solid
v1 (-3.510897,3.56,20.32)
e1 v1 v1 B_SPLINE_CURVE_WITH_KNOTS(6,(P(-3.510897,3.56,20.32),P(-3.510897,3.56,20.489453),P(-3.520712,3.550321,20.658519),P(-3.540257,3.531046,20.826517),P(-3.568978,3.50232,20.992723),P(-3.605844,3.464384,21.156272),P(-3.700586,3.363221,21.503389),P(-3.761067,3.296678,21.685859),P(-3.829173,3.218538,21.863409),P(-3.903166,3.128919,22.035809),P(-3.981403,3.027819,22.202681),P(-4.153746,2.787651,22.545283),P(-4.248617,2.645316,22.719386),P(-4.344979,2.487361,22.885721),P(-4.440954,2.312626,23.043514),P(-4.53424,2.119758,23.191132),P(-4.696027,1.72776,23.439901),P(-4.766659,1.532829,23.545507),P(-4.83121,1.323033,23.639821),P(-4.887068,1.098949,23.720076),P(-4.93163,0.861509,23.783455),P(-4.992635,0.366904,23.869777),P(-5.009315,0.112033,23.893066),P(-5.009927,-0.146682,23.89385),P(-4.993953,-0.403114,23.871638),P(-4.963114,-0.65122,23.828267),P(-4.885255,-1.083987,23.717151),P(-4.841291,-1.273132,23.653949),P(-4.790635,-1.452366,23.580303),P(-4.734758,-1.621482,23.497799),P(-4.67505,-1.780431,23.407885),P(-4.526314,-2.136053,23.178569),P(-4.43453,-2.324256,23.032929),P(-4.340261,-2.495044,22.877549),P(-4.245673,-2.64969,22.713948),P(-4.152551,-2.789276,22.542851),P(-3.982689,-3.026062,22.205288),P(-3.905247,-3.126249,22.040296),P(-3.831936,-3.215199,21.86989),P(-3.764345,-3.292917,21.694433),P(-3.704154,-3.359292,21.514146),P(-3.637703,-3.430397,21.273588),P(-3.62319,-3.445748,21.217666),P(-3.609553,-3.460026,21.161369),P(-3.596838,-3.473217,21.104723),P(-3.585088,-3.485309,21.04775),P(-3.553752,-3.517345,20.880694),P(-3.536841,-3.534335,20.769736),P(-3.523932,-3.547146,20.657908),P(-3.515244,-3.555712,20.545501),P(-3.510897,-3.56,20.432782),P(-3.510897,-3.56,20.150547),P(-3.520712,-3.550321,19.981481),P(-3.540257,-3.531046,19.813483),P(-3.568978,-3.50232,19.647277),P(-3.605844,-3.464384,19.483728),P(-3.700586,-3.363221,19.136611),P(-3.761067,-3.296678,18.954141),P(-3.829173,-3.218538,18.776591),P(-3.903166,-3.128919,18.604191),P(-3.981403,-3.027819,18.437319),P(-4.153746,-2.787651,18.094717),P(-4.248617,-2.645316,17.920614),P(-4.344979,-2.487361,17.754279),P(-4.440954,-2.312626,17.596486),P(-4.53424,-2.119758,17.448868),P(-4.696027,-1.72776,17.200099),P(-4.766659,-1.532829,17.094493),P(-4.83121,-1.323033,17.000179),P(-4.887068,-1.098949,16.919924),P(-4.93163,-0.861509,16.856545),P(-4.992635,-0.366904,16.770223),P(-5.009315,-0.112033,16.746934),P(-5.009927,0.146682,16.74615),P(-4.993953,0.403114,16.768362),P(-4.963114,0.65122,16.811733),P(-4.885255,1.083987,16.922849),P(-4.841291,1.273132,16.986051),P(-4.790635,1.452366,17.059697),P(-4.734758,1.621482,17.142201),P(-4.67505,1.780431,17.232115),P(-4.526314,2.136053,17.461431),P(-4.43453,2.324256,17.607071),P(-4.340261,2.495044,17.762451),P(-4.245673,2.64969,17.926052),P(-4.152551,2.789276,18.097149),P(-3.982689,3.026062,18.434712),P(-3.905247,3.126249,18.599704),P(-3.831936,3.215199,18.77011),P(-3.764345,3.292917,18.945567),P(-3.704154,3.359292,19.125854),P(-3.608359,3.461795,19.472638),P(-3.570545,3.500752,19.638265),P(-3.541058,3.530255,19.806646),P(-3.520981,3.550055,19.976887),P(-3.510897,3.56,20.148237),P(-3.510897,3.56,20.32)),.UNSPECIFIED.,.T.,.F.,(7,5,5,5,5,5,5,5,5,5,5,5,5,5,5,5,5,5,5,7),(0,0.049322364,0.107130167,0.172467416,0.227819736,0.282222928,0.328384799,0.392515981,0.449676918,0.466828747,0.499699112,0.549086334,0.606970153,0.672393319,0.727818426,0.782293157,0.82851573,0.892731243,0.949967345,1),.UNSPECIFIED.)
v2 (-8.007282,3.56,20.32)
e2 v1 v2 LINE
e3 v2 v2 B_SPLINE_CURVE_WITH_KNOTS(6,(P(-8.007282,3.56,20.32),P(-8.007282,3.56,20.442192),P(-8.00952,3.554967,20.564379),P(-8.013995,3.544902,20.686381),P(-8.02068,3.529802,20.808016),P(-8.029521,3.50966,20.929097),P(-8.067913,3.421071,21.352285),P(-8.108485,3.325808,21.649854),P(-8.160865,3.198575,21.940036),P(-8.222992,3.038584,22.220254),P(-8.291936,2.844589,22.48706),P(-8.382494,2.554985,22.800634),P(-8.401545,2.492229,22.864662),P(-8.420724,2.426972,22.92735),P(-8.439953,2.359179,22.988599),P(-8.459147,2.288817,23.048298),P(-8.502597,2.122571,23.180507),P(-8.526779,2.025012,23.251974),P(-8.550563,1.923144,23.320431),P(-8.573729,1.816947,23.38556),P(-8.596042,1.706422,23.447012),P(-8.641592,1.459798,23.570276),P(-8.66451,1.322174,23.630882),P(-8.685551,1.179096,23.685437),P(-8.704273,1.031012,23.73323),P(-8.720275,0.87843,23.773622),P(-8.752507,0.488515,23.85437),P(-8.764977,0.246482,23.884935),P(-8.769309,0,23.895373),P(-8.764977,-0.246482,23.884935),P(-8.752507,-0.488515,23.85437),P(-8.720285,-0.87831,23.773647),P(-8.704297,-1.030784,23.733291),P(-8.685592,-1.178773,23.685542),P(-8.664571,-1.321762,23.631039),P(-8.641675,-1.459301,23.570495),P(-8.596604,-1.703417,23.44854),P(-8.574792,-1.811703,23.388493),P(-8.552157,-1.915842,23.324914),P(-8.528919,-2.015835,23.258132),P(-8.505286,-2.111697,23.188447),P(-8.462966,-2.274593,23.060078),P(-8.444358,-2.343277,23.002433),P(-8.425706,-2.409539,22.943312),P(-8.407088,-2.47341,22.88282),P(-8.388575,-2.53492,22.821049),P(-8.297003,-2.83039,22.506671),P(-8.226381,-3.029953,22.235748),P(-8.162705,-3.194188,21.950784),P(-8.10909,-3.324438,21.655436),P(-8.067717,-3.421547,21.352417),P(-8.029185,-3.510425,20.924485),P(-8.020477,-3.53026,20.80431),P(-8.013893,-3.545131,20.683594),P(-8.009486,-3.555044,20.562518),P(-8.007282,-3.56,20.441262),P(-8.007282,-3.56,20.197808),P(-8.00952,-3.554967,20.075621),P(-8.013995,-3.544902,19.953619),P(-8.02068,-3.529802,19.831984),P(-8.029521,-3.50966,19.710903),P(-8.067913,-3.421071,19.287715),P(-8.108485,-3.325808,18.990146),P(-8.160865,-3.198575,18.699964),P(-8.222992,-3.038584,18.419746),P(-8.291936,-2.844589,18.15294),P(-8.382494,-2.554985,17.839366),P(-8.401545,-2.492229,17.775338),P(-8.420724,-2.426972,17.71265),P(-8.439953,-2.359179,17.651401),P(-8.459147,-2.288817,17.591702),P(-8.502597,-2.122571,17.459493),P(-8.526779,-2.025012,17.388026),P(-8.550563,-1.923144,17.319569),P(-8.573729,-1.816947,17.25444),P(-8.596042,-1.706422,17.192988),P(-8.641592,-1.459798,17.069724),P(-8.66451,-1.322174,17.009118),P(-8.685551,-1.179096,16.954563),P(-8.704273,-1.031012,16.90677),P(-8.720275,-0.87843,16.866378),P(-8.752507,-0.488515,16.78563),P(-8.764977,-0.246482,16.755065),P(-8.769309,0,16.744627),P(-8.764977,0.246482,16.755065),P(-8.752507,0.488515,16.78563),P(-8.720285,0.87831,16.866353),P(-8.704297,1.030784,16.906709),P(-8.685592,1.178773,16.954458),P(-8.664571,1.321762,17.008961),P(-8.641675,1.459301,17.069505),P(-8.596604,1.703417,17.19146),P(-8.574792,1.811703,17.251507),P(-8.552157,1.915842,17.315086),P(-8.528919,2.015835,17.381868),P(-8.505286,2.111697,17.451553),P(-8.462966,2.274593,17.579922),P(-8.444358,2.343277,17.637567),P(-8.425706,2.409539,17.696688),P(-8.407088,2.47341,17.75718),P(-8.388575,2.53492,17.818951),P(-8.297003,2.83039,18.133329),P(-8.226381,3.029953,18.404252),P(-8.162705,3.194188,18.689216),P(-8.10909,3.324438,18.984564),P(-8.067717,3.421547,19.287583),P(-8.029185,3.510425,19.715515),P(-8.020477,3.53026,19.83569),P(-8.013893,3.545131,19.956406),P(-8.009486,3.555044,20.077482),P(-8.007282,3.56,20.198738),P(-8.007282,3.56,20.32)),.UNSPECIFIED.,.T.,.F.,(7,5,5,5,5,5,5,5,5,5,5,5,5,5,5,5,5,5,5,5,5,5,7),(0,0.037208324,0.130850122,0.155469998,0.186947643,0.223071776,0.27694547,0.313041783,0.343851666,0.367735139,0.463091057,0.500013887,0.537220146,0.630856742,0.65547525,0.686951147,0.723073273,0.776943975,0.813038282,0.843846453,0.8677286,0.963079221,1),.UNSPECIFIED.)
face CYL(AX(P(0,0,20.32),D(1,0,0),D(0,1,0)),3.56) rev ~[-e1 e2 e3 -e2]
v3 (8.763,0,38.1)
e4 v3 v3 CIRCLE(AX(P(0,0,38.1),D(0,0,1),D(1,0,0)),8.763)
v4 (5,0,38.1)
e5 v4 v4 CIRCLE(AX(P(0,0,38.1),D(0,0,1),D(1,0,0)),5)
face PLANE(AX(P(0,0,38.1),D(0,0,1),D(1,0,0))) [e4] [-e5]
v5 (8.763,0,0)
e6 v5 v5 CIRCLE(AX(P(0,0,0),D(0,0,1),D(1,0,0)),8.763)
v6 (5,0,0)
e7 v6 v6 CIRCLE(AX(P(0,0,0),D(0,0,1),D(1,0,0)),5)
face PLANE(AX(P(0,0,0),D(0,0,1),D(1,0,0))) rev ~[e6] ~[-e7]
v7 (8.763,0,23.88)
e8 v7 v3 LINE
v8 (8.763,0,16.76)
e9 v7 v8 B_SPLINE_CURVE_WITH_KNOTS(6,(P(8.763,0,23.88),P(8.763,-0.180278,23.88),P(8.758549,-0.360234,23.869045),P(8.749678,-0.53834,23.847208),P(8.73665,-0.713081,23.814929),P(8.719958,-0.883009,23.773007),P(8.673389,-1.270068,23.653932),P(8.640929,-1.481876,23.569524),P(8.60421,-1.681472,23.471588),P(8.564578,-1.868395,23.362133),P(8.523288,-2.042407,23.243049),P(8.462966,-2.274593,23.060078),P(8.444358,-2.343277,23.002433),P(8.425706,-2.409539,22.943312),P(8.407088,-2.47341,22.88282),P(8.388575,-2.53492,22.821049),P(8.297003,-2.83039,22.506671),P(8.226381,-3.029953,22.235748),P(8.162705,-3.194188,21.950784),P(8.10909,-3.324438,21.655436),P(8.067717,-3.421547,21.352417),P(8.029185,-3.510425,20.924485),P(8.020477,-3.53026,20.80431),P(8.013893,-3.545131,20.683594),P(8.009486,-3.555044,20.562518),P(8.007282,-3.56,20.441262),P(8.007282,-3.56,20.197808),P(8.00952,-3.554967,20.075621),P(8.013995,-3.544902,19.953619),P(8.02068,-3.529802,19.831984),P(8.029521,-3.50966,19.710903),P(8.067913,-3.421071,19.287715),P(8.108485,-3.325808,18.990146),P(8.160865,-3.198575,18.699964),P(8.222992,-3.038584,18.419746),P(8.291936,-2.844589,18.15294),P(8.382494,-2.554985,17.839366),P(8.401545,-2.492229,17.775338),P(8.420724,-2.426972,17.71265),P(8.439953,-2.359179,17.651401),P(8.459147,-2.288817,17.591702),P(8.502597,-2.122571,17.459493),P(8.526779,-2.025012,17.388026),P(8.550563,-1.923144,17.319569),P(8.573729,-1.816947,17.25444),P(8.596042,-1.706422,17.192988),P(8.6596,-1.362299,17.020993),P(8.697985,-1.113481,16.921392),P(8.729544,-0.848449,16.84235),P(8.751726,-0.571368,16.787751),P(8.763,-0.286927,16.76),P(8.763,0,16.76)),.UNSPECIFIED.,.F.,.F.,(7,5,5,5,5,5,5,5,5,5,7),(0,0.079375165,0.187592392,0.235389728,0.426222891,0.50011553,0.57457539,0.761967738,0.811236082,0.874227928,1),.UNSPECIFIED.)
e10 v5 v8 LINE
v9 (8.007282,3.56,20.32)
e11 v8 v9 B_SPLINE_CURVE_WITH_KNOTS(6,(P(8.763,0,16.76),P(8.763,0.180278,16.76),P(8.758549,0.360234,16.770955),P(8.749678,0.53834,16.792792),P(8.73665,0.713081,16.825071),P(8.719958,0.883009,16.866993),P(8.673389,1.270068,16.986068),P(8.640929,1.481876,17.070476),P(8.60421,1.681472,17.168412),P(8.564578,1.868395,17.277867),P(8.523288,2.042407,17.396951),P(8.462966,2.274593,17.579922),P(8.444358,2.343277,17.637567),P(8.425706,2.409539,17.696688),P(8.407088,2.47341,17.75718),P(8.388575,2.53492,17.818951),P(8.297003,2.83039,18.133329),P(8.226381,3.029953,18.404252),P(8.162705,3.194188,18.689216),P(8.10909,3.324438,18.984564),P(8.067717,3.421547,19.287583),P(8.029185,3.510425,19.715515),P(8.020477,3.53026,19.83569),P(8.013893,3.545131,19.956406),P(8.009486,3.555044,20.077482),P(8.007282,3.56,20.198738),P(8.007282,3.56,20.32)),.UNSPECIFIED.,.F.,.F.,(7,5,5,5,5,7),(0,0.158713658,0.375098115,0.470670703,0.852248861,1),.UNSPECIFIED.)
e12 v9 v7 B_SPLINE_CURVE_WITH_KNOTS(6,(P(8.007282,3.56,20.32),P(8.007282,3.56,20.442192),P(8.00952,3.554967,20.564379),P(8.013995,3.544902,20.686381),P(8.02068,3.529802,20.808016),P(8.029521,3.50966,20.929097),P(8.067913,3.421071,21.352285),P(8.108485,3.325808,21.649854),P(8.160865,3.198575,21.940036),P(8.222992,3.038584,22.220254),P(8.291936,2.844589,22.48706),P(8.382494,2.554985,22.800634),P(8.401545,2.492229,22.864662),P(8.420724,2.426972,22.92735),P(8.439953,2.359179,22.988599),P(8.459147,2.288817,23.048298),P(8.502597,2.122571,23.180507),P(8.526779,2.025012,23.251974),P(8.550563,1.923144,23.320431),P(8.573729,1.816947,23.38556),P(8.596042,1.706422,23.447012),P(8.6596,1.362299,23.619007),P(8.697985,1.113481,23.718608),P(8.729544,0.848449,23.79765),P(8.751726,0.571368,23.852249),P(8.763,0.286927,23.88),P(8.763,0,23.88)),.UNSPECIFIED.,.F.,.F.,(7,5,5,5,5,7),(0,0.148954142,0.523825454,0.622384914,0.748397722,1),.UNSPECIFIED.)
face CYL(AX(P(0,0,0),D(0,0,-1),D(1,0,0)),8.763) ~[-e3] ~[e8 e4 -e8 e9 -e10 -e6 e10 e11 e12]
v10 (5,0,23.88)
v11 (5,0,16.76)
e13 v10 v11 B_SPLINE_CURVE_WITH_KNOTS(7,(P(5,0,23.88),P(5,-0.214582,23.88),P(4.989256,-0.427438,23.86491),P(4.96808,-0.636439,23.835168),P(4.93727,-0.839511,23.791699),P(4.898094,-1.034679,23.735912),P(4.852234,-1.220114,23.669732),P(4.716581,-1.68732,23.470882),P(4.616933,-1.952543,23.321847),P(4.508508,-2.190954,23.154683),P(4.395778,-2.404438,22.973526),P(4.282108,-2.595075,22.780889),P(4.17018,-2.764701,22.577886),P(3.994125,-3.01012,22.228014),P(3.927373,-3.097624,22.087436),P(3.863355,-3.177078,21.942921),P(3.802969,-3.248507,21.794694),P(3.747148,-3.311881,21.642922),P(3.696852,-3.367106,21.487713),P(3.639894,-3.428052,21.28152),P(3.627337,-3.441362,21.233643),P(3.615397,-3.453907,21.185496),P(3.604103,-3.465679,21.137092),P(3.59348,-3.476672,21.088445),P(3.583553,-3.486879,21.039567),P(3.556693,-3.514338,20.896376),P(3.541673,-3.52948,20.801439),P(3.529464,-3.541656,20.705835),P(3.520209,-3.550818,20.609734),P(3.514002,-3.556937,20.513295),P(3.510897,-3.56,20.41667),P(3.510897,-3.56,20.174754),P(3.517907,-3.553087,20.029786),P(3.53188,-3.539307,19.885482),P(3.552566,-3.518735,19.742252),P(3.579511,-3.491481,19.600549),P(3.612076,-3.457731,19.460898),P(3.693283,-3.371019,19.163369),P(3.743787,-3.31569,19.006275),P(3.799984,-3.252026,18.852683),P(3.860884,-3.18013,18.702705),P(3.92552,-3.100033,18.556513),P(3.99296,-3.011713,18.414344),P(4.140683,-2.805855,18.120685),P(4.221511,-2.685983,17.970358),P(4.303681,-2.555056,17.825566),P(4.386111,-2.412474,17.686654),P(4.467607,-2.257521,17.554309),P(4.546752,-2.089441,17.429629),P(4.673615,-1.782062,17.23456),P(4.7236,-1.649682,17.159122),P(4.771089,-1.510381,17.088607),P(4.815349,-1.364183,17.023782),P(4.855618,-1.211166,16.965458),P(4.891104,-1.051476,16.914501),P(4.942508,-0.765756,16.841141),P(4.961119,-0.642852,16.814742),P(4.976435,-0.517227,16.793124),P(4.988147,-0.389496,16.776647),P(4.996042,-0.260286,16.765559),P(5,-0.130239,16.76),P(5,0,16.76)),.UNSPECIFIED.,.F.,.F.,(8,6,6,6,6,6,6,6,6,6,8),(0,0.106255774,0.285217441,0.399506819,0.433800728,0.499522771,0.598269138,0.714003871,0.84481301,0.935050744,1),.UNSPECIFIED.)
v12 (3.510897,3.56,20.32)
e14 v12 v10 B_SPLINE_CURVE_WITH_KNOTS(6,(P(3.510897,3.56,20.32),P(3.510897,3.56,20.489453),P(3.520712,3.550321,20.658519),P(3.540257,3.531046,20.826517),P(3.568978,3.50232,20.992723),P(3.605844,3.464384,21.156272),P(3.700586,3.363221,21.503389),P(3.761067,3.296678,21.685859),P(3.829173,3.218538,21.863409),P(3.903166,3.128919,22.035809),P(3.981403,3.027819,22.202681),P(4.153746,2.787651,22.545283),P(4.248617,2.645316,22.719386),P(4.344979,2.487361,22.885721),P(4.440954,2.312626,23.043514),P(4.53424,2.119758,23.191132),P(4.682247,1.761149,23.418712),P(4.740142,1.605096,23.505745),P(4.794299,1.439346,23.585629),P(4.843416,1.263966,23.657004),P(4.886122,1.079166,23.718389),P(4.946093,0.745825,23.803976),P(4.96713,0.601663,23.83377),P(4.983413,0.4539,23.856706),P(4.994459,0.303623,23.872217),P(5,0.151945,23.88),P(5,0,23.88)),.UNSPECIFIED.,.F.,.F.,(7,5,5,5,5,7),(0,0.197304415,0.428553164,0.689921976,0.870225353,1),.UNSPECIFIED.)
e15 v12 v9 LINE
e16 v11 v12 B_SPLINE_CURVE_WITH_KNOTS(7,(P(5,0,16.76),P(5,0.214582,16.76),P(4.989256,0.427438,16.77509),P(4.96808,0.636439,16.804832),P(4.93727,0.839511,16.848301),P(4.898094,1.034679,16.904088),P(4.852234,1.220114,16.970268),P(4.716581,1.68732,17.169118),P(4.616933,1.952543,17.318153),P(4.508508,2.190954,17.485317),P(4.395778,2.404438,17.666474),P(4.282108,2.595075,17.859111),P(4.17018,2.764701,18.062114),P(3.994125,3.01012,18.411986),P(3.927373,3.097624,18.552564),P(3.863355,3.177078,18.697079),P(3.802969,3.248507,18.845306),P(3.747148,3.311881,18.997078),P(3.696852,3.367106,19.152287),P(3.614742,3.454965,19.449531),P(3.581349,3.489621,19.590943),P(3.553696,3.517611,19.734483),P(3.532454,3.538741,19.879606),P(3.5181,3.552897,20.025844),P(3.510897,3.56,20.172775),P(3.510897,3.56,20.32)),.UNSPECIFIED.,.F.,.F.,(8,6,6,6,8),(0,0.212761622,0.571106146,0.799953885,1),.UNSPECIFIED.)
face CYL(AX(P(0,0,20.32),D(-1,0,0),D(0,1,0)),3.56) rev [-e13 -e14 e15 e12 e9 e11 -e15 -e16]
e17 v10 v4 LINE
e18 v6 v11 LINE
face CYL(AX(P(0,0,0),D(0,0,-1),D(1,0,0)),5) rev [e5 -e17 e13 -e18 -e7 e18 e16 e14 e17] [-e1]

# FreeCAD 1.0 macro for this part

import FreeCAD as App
import Part
import Sketcher

V = App.Vector
Q = App.Units.Quantity

doc = App.newDocument("Part")
body = doc.addObject("PartDesign::Body", "Body")

sketch1 = doc.addObject("Sketcher::SketchObject", "Sketch")
body.addObject(sketch1)
sketch1.AttachmentSupport = (doc.XY_Plane, [""])
sketch1.MapMode = "FlatFace"
sketch1.addGeometry([
    Part.Circle(V(0, 0, 0), V(0, 0, 1), 9),
    Part.Circle(V(0, 0, 0), V(0, 0, 1), 5),
], False)
sketch1.addConstraint([
    Sketcher.Constraint("Coincident", 0, 3, -1, 1),
    Sketcher.Constraint("Coincident", 1, 3, -1, 1),
    Sketcher.Constraint("Diameter", 0, Q("0.69 in")),
    Sketcher.Constraint("Diameter", 1, Q("0.3937 in")),
])
pad1 = doc.addObject("PartDesign::Pad", "Pad")
body.addObject(pad1)
pad1.Profile = sketch1
pad1.Length = Q("1.5 in")

sketch2 = doc.addObject("Sketcher::SketchObject", "Sketch001")
body.addObject(sketch2)
sketch2.AttachmentSupport = (doc.YZ_Plane, [""])
sketch2.MapMode = "FlatFace"
sketch2.addGeometry(Part.Circle(V(0, 20.3, 0), V(0, 0, 1), 3.6), False)
sketch2.addConstraint([
    Sketcher.Constraint("PointOnObject", 0, 3, -2),
    Sketcher.Constraint("DistanceY", -1, 1, 0, 3, Q("0.8 in")),
    Sketcher.Constraint("Diameter", 0, 7.12),
])
pocket1 = doc.addObject("PartDesign::Pocket", "Pocket")
body.addObject(pocket1)
pocket1.Profile = sketch2
pocket1.Length = Q("1 in")
pocket1.Midplane = True

doc.recompute()
